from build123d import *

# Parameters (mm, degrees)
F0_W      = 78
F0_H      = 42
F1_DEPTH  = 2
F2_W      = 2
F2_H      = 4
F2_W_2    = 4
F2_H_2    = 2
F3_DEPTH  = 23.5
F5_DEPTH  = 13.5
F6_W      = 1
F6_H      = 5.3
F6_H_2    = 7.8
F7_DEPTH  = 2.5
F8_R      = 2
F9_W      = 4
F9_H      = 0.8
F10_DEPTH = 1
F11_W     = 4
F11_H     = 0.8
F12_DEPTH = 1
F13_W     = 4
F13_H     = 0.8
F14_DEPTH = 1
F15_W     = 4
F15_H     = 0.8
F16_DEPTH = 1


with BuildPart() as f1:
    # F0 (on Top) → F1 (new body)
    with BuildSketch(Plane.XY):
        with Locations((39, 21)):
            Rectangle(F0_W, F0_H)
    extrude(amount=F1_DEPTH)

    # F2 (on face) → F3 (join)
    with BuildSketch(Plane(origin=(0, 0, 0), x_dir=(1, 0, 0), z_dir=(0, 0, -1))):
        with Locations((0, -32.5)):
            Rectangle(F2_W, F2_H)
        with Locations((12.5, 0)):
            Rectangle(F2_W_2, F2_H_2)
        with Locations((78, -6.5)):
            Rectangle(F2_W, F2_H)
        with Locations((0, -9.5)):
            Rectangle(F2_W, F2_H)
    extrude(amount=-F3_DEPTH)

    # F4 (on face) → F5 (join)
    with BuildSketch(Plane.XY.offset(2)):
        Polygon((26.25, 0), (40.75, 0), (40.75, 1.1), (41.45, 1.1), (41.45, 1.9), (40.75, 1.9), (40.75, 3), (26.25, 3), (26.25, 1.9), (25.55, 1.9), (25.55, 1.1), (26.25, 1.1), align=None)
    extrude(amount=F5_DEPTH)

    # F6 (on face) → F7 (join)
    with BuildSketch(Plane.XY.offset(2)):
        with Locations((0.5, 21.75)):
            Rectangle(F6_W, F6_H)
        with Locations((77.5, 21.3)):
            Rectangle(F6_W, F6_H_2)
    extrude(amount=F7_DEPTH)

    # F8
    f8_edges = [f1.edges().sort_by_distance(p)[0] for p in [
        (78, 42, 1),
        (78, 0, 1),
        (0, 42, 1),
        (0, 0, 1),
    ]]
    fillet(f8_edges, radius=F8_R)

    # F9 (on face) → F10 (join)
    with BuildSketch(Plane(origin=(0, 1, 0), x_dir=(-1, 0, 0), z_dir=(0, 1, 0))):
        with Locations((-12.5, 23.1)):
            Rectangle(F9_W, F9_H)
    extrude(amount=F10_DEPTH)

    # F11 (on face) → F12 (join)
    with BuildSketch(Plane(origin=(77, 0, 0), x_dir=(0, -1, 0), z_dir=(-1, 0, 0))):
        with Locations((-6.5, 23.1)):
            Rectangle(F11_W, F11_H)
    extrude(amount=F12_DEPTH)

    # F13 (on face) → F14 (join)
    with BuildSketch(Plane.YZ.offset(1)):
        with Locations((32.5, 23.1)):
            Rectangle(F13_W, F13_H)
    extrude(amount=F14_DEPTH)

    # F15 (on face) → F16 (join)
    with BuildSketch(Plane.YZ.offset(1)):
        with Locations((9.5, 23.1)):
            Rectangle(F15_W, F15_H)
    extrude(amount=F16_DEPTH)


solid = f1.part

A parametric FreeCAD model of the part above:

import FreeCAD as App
import Part
import Sketcher
Q = App.Units.Quantity


def edges_at(feature, points):
    """Names of the edges that pass closest to the given points."""
    edges = feature.Shape.Edges
    near = lambda p: min(range(len(edges)), key=lambda i: edges[i].distToShape(Part.Vertex(*p))[0])
    return sorted({f"Edge{near(p) + 1}" for p in points})

doc = App.newDocument("Part")
body = doc.addObject("PartDesign::Body", "Body")

# Sketch on XY plane
sketch1 = body.newObject("Sketcher::SketchObject", "Sketch")
sketch1.AttachmentSupport = (doc.getObject("XY_Plane"), [""])
sketch1.MapMode = "FlatFace"
sketch1.addGeometry(Part.LineSegment(App.Vector(0, 42, 0), App.Vector(0, 0, 0)), False)
sketch1.addGeometry(Part.LineSegment(App.Vector(0, 0, 0), App.Vector(78, 0, 0)), False)
sketch1.addGeometry(Part.LineSegment(App.Vector(78, 0, 0), App.Vector(78, 42, 0)), False)
sketch1.addGeometry(Part.LineSegment(App.Vector(78, 42, 0), App.Vector(0, 42, 0)), False)
sketch1.addConstraint(Sketcher.Constraint("Coincident", 0, 2, 1, 1))
sketch1.addConstraint(Sketcher.Constraint("Coincident", 1, 2, 2, 1))
sketch1.addConstraint(Sketcher.Constraint("Coincident", 2, 2, 3, 1))
sketch1.addConstraint(Sketcher.Constraint("Coincident", 3, 2, 0, 1))
sketch1.addConstraint(Sketcher.Constraint("Vertical", 0))
sketch1.addConstraint(Sketcher.Constraint("Horizontal", 1))
sketch1.addConstraint(Sketcher.Constraint("Vertical", 2))
sketch1.addConstraint(Sketcher.Constraint("Horizontal", 3))
sketch1.addConstraint(Sketcher.Constraint("Coincident", 0, 2, -1, 1))
sketch1.addConstraint(Sketcher.Constraint("DistanceX", 1, 1, 1, 2, Q("78 mm")))
sketch1.addConstraint(Sketcher.Constraint("DistanceY", 0, 2, 0, 1, Q("42 mm")))
pad1 = body.newObject("PartDesign::Pad", "Pad")
pad1.Profile = sketch1
pad1.Length = 2

# Sketch on XY plane
sketch2 = body.newObject("Sketcher::SketchObject", "Sketch001")
sketch2.AttachmentSupport = (doc.getObject("XY_Plane"), [""])
sketch2.MapMode = "FlatFace"
sketch2.addGeometry(Part.LineSegment(App.Vector(-1, 30.5, 0), App.Vector(-1, 34.5, 0)), False)
sketch2.addGeometry(Part.LineSegment(App.Vector(-1, 34.5, 0), App.Vector(1, 34.5, 0)), False)
sketch2.addGeometry(Part.LineSegment(App.Vector(1, 34.5, 0), App.Vector(1, 30.5, 0)), False)
sketch2.addGeometry(Part.LineSegment(App.Vector(1, 30.5, 0), App.Vector(-1, 30.5, 0)), False)
sketch2.addGeometry(Part.LineSegment(App.Vector(10.5, -1, 0), App.Vector(10.5, 1, 0)), False)
sketch2.addGeometry(Part.LineSegment(App.Vector(10.5, 1, 0), App.Vector(14.5, 1, 0)), False)
sketch2.addGeometry(Part.LineSegment(App.Vector(14.5, 1, 0), App.Vector(14.5, -1, 0)), False)
sketch2.addGeometry(Part.LineSegment(App.Vector(14.5, -1, 0), App.Vector(10.5, -1, 0)), False)
sketch2.addGeometry(Part.LineSegment(App.Vector(77, 4.5, 0), App.Vector(77, 8.5, 0)), False)
sketch2.addGeometry(Part.LineSegment(App.Vector(77, 8.5, 0), App.Vector(79, 8.5, 0)), False)
sketch2.addGeometry(Part.LineSegment(App.Vector(79, 8.5, 0), App.Vector(79, 4.5, 0)), False)
sketch2.addGeometry(Part.LineSegment(App.Vector(79, 4.5, 0), App.Vector(77, 4.5, 0)), False)
sketch2.addGeometry(Part.LineSegment(App.Vector(-1, 7.5, 0), App.Vector(-1, 11.5, 0)), False)
sketch2.addGeometry(Part.LineSegment(App.Vector(-1, 11.5, 0), App.Vector(1, 11.5, 0)), False)
sketch2.addGeometry(Part.LineSegment(App.Vector(1, 11.5, 0), App.Vector(1, 7.5, 0)), False)
sketch2.addGeometry(Part.LineSegment(App.Vector(1, 7.5, 0), App.Vector(-1, 7.5, 0)), False)
sketch2.addConstraint(Sketcher.Constraint("Coincident", 0, 2, 1, 1))
sketch2.addConstraint(Sketcher.Constraint("Coincident", 1, 2, 2, 1))
sketch2.addConstraint(Sketcher.Constraint("Coincident", 2, 2, 3, 1))
sketch2.addConstraint(Sketcher.Constraint("Coincident", 3, 2, 0, 1))
sketch2.addConstraint(Sketcher.Constraint("Coincident", 4, 2, 5, 1))
sketch2.addConstraint(Sketcher.Constraint("Coincident", 5, 2, 6, 1))
sketch2.addConstraint(Sketcher.Constraint("Coincident", 6, 2, 7, 1))
sketch2.addConstraint(Sketcher.Constraint("Coincident", 7, 2, 4, 1))
sketch2.addConstraint(Sketcher.Constraint("Coincident", 8, 2, 9, 1))
sketch2.addConstraint(Sketcher.Constraint("Coincident", 9, 2, 10, 1))
sketch2.addConstraint(Sketcher.Constraint("Coincident", 10, 2, 11, 1))
sketch2.addConstraint(Sketcher.Constraint("Coincident", 11, 2, 8, 1))
sketch2.addConstraint(Sketcher.Constraint("Coincident", 12, 2, 13, 1))
sketch2.addConstraint(Sketcher.Constraint("Coincident", 13, 2, 14, 1))
sketch2.addConstraint(Sketcher.Constraint("Coincident", 14, 2, 15, 1))
sketch2.addConstraint(Sketcher.Constraint("Coincident", 15, 2, 12, 1))
sketch2.addConstraint(Sketcher.Constraint("Vertical", 0))
sketch2.addConstraint(Sketcher.Constraint("Horizontal", 1))
sketch2.addConstraint(Sketcher.Constraint("Vertical", 2))
sketch2.addConstraint(Sketcher.Constraint("Horizontal", 3))
sketch2.addConstraint(Sketcher.Constraint("Vertical", 4))
sketch2.addConstraint(Sketcher.Constraint("Horizontal", 5))
sketch2.addConstraint(Sketcher.Constraint("Vertical", 6))
sketch2.addConstraint(Sketcher.Constraint("Horizontal", 7))
sketch2.addConstraint(Sketcher.Constraint("Vertical", 8))
sketch2.addConstraint(Sketcher.Constraint("Horizontal", 9))
sketch2.addConstraint(Sketcher.Constraint("Vertical", 10))
sketch2.addConstraint(Sketcher.Constraint("Horizontal", 11))
sketch2.addConstraint(Sketcher.Constraint("Vertical", 12))
sketch2.addConstraint(Sketcher.Constraint("Horizontal", 13))
sketch2.addConstraint(Sketcher.Constraint("Vertical", 14))
sketch2.addConstraint(Sketcher.Constraint("Horizontal", 15))
sketch2.addConstraint(Sketcher.Constraint("Vertical", 3, 2, 12, 2))
sketch2.addConstraint(Sketcher.Constraint("Vertical", 2, 2, 13, 2))
sketch2.addConstraint(Sketcher.Constraint("Equal", 3, 9))
sketch2.addConstraint(Sketcher.Constraint("Equal", 7, 0))
sketch2.addConstraint(Sketcher.Constraint("Equal", 15, 4))
sketch2.addConstraint(Sketcher.Constraint("Equal", 2, 8))
sketch2.addConstraint(Sketcher.Constraint("Equal", 10, 12))
sketch2.addConstraint(Sketcher.Constraint("DistanceX", 1, 1, 1, 2, Q("2 mm")))
sketch2.addConstraint(Sketcher.Constraint("DistanceX", 5, 1, 5, 2, Q("4 mm")))
sketch2.addConstraint(Sketcher.Constraint("DistanceX", 0, 2, -1, 1, Q("1 mm")))
sketch2.addConstraint(Sketcher.Constraint("DistanceY", -1, 1, 4, 2, Q("1 mm")))
sketch2.addConstraint(Sketcher.Constraint("DistanceX", -1, 1, 8, 2, Q("77 mm")))
sketch2.addConstraint(Sketcher.Constraint("DistanceY", 8, 2, 2, 2, Q("22 mm")))
sketch2.addConstraint(Sketcher.Constraint("DistanceY", 12, 2, 3, 2, Q("19 mm")))
sketch2.addConstraint(Sketcher.Constraint("DistanceY", -1, 1, 0, 2, Q("34.5 mm")))
sketch2.addConstraint(Sketcher.Constraint("DistanceX", -1, 1, 4, 2, Q("10.5 mm")))
pad2 = body.newObject("PartDesign::Pad", "Pad001")
pad2.Profile = sketch2
pad2.Length = 23.5

# Sketch on XY plane
sketch3 = body.newObject("Sketcher::SketchObject", "Sketch002")
sketch3.AttachmentSupport = (doc.getObject("XY_Plane"), [""])
sketch3.MapMode = "FlatFace"
sketch3.AttachmentOffset = App.Placement(App.Vector(0, 0, 2), App.Rotation())
sketch3.addGeometry(Part.LineSegment(App.Vector(26.2, 0, 0), App.Vector(40.8, 0, 0)), False)
sketch3.addGeometry(Part.LineSegment(App.Vector(40.8, 0, 0), App.Vector(40.8, 1.1, 0)), False)
sketch3.addGeometry(Part.LineSegment(App.Vector(40.8, 1.1, 0), App.Vector(41.5, 1.1, 0)), False)
sketch3.addGeometry(Part.LineSegment(App.Vector(41.5, 1.1, 0), App.Vector(41.5, 1.9, 0)), False)
sketch3.addGeometry(Part.LineSegment(App.Vector(41.5, 1.9, 0), App.Vector(40.8, 1.9, 0)), False)
sketch3.addGeometry(Part.LineSegment(App.Vector(40.8, 1.9, 0), App.Vector(40.8, 3, 0)), False)
sketch3.addGeometry(Part.LineSegment(App.Vector(40.8, 3, 0), App.Vector(26.2, 3, 0)), False)
sketch3.addGeometry(Part.LineSegment(App.Vector(26.2, 3, 0), App.Vector(26.2, 1.9, 0)), False)
sketch3.addGeometry(Part.LineSegment(App.Vector(26.2, 1.9, 0), App.Vector(25.6, 1.9, 0)), False)
sketch3.addGeometry(Part.LineSegment(App.Vector(25.6, 1.9, 0), App.Vector(25.6, 1.1, 0)), False)
sketch3.addGeometry(Part.LineSegment(App.Vector(25.6, 1.1, 0), App.Vector(26.2, 1.1, 0)), False)
sketch3.addGeometry(Part.LineSegment(App.Vector(26.2, 1.1, 0), App.Vector(26.2, 0, 0)), False)
sketch3.addConstraint(Sketcher.Constraint("Coincident", 0, 2, 1, 1))
sketch3.addConstraint(Sketcher.Constraint("Coincident", 1, 2, 2, 1))
sketch3.addConstraint(Sketcher.Constraint("Coincident", 2, 2, 3, 1))
sketch3.addConstraint(Sketcher.Constraint("Coincident", 3, 2, 4, 1))
sketch3.addConstraint(Sketcher.Constraint("Coincident", 4, 2, 5, 1))
sketch3.addConstraint(Sketcher.Constraint("Coincident", 5, 2, 6, 1))
sketch3.addConstraint(Sketcher.Constraint("Coincident", 6, 2, 7, 1))
sketch3.addConstraint(Sketcher.Constraint("Coincident", 7, 2, 8, 1))
sketch3.addConstraint(Sketcher.Constraint("Coincident", 8, 2, 9, 1))
sketch3.addConstraint(Sketcher.Constraint("Coincident", 9, 2, 10, 1))
sketch3.addConstraint(Sketcher.Constraint("Coincident", 10, 2, 11, 1))
sketch3.addConstraint(Sketcher.Constraint("Coincident", 11, 2, 0, 1))
sketch3.addConstraint(Sketcher.Constraint("Horizontal", 0))
sketch3.addConstraint(Sketcher.Constraint("Vertical", 1))
sketch3.addConstraint(Sketcher.Constraint("Horizontal", 2))
sketch3.addConstraint(Sketcher.Constraint("Vertical", 3))
sketch3.addConstraint(Sketcher.Constraint("Horizontal", 4))
sketch3.addConstraint(Sketcher.Constraint("Vertical", 5))
sketch3.addConstraint(Sketcher.Constraint("Horizontal", 6))
sketch3.addConstraint(Sketcher.Constraint("Vertical", 7))
sketch3.addConstraint(Sketcher.Constraint("Horizontal", 8))
sketch3.addConstraint(Sketcher.Constraint("Vertical", 9))
sketch3.addConstraint(Sketcher.Constraint("Horizontal", 10))
sketch3.addConstraint(Sketcher.Constraint("Vertical", 11))
sketch3.addConstraint(Sketcher.Constraint("PointOnObject", 0, 2, -1))
sketch3.addConstraint(Sketcher.Constraint("Horizontal", 4, 2, 7, 2))
sketch3.addConstraint(Sketcher.Constraint("Horizontal", 2, 2, 9, 2))
sketch3.addConstraint(Sketcher.Constraint("Vertical", 1, 2, 4, 2))
sketch3.addConstraint(Sketcher.Constraint("Vertical", 7, 2, 10, 2))
sketch3.addConstraint(Sketcher.Constraint("Equal", 4, 8))
sketch3.addConstraint(Sketcher.Constraint("Equal", 1, 5))
sketch3.addConstraint(Sketcher.Constraint("DistanceX", 0, 1, 0, 2, Q("14.5 mm")))
sketch3.addConstraint(Sketcher.Constraint("DistanceX", 2, 1, 2, 2, Q("0.7 mm")))
sketch3.addConstraint(Sketcher.Constraint("DistanceY", 1, 1, 1, 2, Q("1.1 mm")))
sketch3.addConstraint(Sketcher.Constraint("DistanceY", 3, 1, 3, 2, Q("0.8 mm")))
sketch3.addConstraint(Sketcher.Constraint("DistanceX", -1, 1, 0, 2, Q("40.75 mm")))
pad3 = body.newObject("PartDesign::Pad", "Pad002")
pad3.Profile = sketch3
pad3.Length = 13.5

# Sketch on XY plane
sketch4 = body.newObject("Sketcher::SketchObject", "Sketch003")
sketch4.AttachmentSupport = (doc.getObject("XY_Plane"), [""])
sketch4.MapMode = "FlatFace"
sketch4.AttachmentOffset = App.Placement(App.Vector(0, 0, 2), App.Rotation())
sketch4.addGeometry(Part.LineSegment(App.Vector(0, 24.4, 0), App.Vector(0, 19.1, 0)), False)
sketch4.addGeometry(Part.LineSegment(App.Vector(0, 19.1, 0), App.Vector(1, 19.1, 0)), False)
sketch4.addGeometry(Part.LineSegment(App.Vector(1, 19.1, 0), App.Vector(1, 24.4, 0)), False)
sketch4.addGeometry(Part.LineSegment(App.Vector(1, 24.4, 0), App.Vector(0, 24.4, 0)), False)
sketch4.addGeometry(Part.LineSegment(App.Vector(77, 25.2, 0), App.Vector(77, 17.4, 0)), False)
sketch4.addGeometry(Part.LineSegment(App.Vector(77, 17.4, 0), App.Vector(78, 17.4, 0)), False)
sketch4.addGeometry(Part.LineSegment(App.Vector(78, 17.4, 0), App.Vector(78, 25.2, 0)), False)
sketch4.addGeometry(Part.LineSegment(App.Vector(78, 25.2, 0), App.Vector(77, 25.2, 0)), False)
sketch4.addConstraint(Sketcher.Constraint("Coincident", 0, 2, 1, 1))
sketch4.addConstraint(Sketcher.Constraint("Coincident", 1, 2, 2, 1))
sketch4.addConstraint(Sketcher.Constraint("Coincident", 2, 2, 3, 1))
sketch4.addConstraint(Sketcher.Constraint("Coincident", 3, 2, 0, 1))
sketch4.addConstraint(Sketcher.Constraint("Coincident", 4, 2, 5, 1))
sketch4.addConstraint(Sketcher.Constraint("Coincident", 5, 2, 6, 1))
sketch4.addConstraint(Sketcher.Constraint("Coincident", 6, 2, 7, 1))
sketch4.addConstraint(Sketcher.Constraint("Coincident", 7, 2, 4, 1))
sketch4.addConstraint(Sketcher.Constraint("Vertical", 0))
sketch4.addConstraint(Sketcher.Constraint("Horizontal", 1))
sketch4.addConstraint(Sketcher.Constraint("Vertical", 2))
sketch4.addConstraint(Sketcher.Constraint("Horizontal", 3))
sketch4.addConstraint(Sketcher.Constraint("Vertical", 4))
sketch4.addConstraint(Sketcher.Constraint("Horizontal", 5))
sketch4.addConstraint(Sketcher.Constraint("Vertical", 6))
sketch4.addConstraint(Sketcher.Constraint("Horizontal", 7))
sketch4.addConstraint(Sketcher.Constraint("PointOnObject", 0, 2, -2))
sketch4.addConstraint(Sketcher.Constraint("Equal", 3, 5))
sketch4.addConstraint(Sketcher.Constraint("DistanceX", 1, 1, 1, 2, Q("1 mm")))
sketch4.addConstraint(Sketcher.Constraint("DistanceY", 0, 2, 0, 1, Q("5.3 mm")))
sketch4.addConstraint(Sketcher.Constraint("DistanceY", 4, 2, 4, 1, Q("7.8 mm")))
sketch4.addConstraint(Sketcher.Constraint("DistanceX", -1, 1, 4, 2, Q("77 mm")))
sketch4.addConstraint(Sketcher.Constraint("DistanceY", 4, 2, 2, 2, Q("7 mm")))
sketch4.addConstraint(Sketcher.Constraint("DistanceY", -1, 1, 0, 2, Q("19.1 mm")))
pad4 = body.newObject("PartDesign::Pad", "Pad003")
pad4.Profile = sketch4
pad4.Length = 2.5
doc.recompute()

fillet = body.newObject("PartDesign::Fillet", "Fillet")
fillet.Base = (pad4, edges_at(pad4, [
    (78, 42, 1),
    (78, 0, 1),
    (0, 42, 1),
    (0, 0, 1),
]))
fillet.Radius = 2

# Sketch on XZ plane
sketch5 = body.newObject("Sketcher::SketchObject", "Sketch004")
sketch5.AttachmentSupport = (doc.getObject("XZ_Plane"), [""])
sketch5.MapMode = "FlatFace"
sketch5.AttachmentOffset = App.Placement(App.Vector(0, 0, -1), App.Rotation())
sketch5.addGeometry(Part.LineSegment(App.Vector(14.5, 23.5, 0), App.Vector(14.5, 22.7, 0)), False)
sketch5.addGeometry(Part.LineSegment(App.Vector(14.5, 22.7, 0), App.Vector(10.5, 22.7, 0)), False)
sketch5.addGeometry(Part.LineSegment(App.Vector(10.5, 22.7, 0), App.Vector(10.5, 23.5, 0)), False)
sketch5.addGeometry(Part.LineSegment(App.Vector(10.5, 23.5, 0), App.Vector(14.5, 23.5, 0)), False)
sketch5.addConstraint(Sketcher.Constraint("Coincident", 0, 2, 1, 1))
sketch5.addConstraint(Sketcher.Constraint("Coincident", 1, 2, 2, 1))
sketch5.addConstraint(Sketcher.Constraint("Coincident", 2, 2, 3, 1))
sketch5.addConstraint(Sketcher.Constraint("Coincident", 3, 2, 0, 1))
sketch5.addConstraint(Sketcher.Constraint("Vertical", 0))
sketch5.addConstraint(Sketcher.Constraint("Horizontal", 1))
sketch5.addConstraint(Sketcher.Constraint("Vertical", 2))
sketch5.addConstraint(Sketcher.Constraint("Horizontal", 3))
sketch5.addConstraint(Sketcher.Constraint("DistanceX", 1, 2, 1, 1, Q("4 mm")))
sketch5.addConstraint(Sketcher.Constraint("DistanceY", 0, 2, 0, 1, Q("0.8 mm")))
sketch5.addConstraint(Sketcher.Constraint("DistanceX", -1, 1, 0, 2, Q("14.5 mm")))
sketch5.addConstraint(Sketcher.Constraint("DistanceY", -1, 1, 0, 2, Q("22.7 mm")))
pad5 = body.newObject("PartDesign::Pad", "Pad004")
pad5.Profile = sketch5
pad5.Length = 1
pad5.Reversed = True

# Sketch on YZ plane
sketch6 = body.newObject("Sketcher::SketchObject", "Sketch005")
sketch6.AttachmentSupport = (doc.getObject("YZ_Plane"), [""])
sketch6.MapMode = "FlatFace"
sketch6.AttachmentOffset = App.Placement(App.Vector(0, 0, 77), App.Rotation())
sketch6.addGeometry(Part.LineSegment(App.Vector(8.5, 23.5, 0), App.Vector(8.5, 22.7, 0)), False)
sketch6.addGeometry(Part.LineSegment(App.Vector(8.5, 22.7, 0), App.Vector(4.5, 22.7, 0)), False)
sketch6.addGeometry(Part.LineSegment(App.Vector(4.5, 22.7, 0), App.Vector(4.5, 23.5, 0)), False)
sketch6.addGeometry(Part.LineSegment(App.Vector(4.5, 23.5, 0), App.Vector(8.5, 23.5, 0)), False)
sketch6.addConstraint(Sketcher.Constraint("Coincident", 0, 2, 1, 1))
sketch6.addConstraint(Sketcher.Constraint("Coincident", 1, 2, 2, 1))
sketch6.addConstraint(Sketcher.Constraint("Coincident", 2, 2, 3, 1))
sketch6.addConstraint(Sketcher.Constraint("Coincident", 3, 2, 0, 1))
sketch6.addConstraint(Sketcher.Constraint("Vertical", 0))
sketch6.addConstraint(Sketcher.Constraint("Horizontal", 1))
sketch6.addConstraint(Sketcher.Constraint("Vertical", 2))
sketch6.addConstraint(Sketcher.Constraint("Horizontal", 3))
sketch6.addConstraint(Sketcher.Constraint("DistanceX", 1, 2, 1, 1, Q("4 mm")))
sketch6.addConstraint(Sketcher.Constraint("DistanceY", 0, 2, 0, 1, Q("0.8 mm")))
sketch6.addConstraint(Sketcher.Constraint("DistanceX", -1, 1, 0, 2, Q("8.5 mm")))
sketch6.addConstraint(Sketcher.Constraint("DistanceY", -1, 1, 0, 2, Q("22.7 mm")))
pad6 = body.newObject("PartDesign::Pad", "Pad005")
pad6.Profile = sketch6
pad6.Length = 1
pad6.Reversed = True

# Sketch on YZ plane
sketch7 = body.newObject("Sketcher::SketchObject", "Sketch006")
sketch7.AttachmentSupport = (doc.getObject("YZ_Plane"), [""])
sketch7.MapMode = "FlatFace"
sketch7.AttachmentOffset = App.Placement(App.Vector(0, 0, 1), App.Rotation())
sketch7.addGeometry(Part.LineSegment(App.Vector(30.5, 23.5, 0), App.Vector(30.5, 22.7, 0)), False)
sketch7.addGeometry(Part.LineSegment(App.Vector(30.5, 22.7, 0), App.Vector(34.5, 22.7, 0)), False)
sketch7.addGeometry(Part.LineSegment(App.Vector(34.5, 22.7, 0), App.Vector(34.5, 23.5, 0)), False)
sketch7.addGeometry(Part.LineSegment(App.Vector(34.5, 23.5, 0), App.Vector(30.5, 23.5, 0)), False)
sketch7.addConstraint(Sketcher.Constraint("Coincident", 0, 2, 1, 1))
sketch7.addConstraint(Sketcher.Constraint("Coincident", 1, 2, 2, 1))
sketch7.addConstraint(Sketcher.Constraint("Coincident", 2, 2, 3, 1))
sketch7.addConstraint(Sketcher.Constraint("Coincident", 3, 2, 0, 1))
sketch7.addConstraint(Sketcher.Constraint("Vertical", 0))
sketch7.addConstraint(Sketcher.Constraint("Horizontal", 1))
sketch7.addConstraint(Sketcher.Constraint("Vertical", 2))
sketch7.addConstraint(Sketcher.Constraint("Horizontal", 3))
sketch7.addConstraint(Sketcher.Constraint("DistanceX", 1, 1, 1, 2, Q("4 mm")))
sketch7.addConstraint(Sketcher.Constraint("DistanceY", 0, 2, 0, 1, Q("0.8 mm")))
sketch7.addConstraint(Sketcher.Constraint("DistanceX", -1, 1, 0, 2, Q("30.5 mm")))
sketch7.addConstraint(Sketcher.Constraint("DistanceY", -1, 1, 0, 2, Q("22.7 mm")))
pad7 = body.newObject("PartDesign::Pad", "Pad006")
pad7.Profile = sketch7
pad7.Length = 1

# Sketch on YZ plane
sketch8 = body.newObject("Sketcher::SketchObject", "Sketch007")
sketch8.AttachmentSupport = (doc.getObject("YZ_Plane"), [""])
sketch8.MapMode = "FlatFace"
sketch8.AttachmentOffset = App.Placement(App.Vector(0, 0, 1), App.Rotation())
sketch8.addGeometry(Part.LineSegment(App.Vector(7.5, 23.5, 0), App.Vector(7.5, 22.7, 0)), False)
sketch8.addGeometry(Part.LineSegment(App.Vector(7.5, 22.7, 0), App.Vector(11.5, 22.7, 0)), False)
sketch8.addGeometry(Part.LineSegment(App.Vector(11.5, 22.7, 0), App.Vector(11.5, 23.5, 0)), False)
sketch8.addGeometry(Part.LineSegment(App.Vector(11.5, 23.5, 0), App.Vector(7.5, 23.5, 0)), False)
sketch8.addConstraint(Sketcher.Constraint("Coincident", 0, 2, 1, 1))
sketch8.addConstraint(Sketcher.Constraint("Coincident", 1, 2, 2, 1))
sketch8.addConstraint(Sketcher.Constraint("Coincident", 2, 2, 3, 1))
sketch8.addConstraint(Sketcher.Constraint("Coincident", 3, 2, 0, 1))
sketch8.addConstraint(Sketcher.Constraint("Vertical", 0))
sketch8.addConstraint(Sketcher.Constraint("Horizontal", 1))
sketch8.addConstraint(Sketcher.Constraint("Vertical", 2))
sketch8.addConstraint(Sketcher.Constraint("Horizontal", 3))
sketch8.addConstraint(Sketcher.Constraint("DistanceX", 1, 1, 1, 2, Q("4 mm")))
sketch8.addConstraint(Sketcher.Constraint("DistanceY", 0, 2, 0, 1, Q("0.8 mm")))
sketch8.addConstraint(Sketcher.Constraint("DistanceX", -1, 1, 0, 2, Q("7.5 mm")))
sketch8.addConstraint(Sketcher.Constraint("DistanceY", -1, 1, 0, 2, Q("22.7 mm")))
pad8 = body.newObject("PartDesign::Pad", "Pad007")
pad8.Profile = sketch8
pad8.Length = 1

doc.recompute()
